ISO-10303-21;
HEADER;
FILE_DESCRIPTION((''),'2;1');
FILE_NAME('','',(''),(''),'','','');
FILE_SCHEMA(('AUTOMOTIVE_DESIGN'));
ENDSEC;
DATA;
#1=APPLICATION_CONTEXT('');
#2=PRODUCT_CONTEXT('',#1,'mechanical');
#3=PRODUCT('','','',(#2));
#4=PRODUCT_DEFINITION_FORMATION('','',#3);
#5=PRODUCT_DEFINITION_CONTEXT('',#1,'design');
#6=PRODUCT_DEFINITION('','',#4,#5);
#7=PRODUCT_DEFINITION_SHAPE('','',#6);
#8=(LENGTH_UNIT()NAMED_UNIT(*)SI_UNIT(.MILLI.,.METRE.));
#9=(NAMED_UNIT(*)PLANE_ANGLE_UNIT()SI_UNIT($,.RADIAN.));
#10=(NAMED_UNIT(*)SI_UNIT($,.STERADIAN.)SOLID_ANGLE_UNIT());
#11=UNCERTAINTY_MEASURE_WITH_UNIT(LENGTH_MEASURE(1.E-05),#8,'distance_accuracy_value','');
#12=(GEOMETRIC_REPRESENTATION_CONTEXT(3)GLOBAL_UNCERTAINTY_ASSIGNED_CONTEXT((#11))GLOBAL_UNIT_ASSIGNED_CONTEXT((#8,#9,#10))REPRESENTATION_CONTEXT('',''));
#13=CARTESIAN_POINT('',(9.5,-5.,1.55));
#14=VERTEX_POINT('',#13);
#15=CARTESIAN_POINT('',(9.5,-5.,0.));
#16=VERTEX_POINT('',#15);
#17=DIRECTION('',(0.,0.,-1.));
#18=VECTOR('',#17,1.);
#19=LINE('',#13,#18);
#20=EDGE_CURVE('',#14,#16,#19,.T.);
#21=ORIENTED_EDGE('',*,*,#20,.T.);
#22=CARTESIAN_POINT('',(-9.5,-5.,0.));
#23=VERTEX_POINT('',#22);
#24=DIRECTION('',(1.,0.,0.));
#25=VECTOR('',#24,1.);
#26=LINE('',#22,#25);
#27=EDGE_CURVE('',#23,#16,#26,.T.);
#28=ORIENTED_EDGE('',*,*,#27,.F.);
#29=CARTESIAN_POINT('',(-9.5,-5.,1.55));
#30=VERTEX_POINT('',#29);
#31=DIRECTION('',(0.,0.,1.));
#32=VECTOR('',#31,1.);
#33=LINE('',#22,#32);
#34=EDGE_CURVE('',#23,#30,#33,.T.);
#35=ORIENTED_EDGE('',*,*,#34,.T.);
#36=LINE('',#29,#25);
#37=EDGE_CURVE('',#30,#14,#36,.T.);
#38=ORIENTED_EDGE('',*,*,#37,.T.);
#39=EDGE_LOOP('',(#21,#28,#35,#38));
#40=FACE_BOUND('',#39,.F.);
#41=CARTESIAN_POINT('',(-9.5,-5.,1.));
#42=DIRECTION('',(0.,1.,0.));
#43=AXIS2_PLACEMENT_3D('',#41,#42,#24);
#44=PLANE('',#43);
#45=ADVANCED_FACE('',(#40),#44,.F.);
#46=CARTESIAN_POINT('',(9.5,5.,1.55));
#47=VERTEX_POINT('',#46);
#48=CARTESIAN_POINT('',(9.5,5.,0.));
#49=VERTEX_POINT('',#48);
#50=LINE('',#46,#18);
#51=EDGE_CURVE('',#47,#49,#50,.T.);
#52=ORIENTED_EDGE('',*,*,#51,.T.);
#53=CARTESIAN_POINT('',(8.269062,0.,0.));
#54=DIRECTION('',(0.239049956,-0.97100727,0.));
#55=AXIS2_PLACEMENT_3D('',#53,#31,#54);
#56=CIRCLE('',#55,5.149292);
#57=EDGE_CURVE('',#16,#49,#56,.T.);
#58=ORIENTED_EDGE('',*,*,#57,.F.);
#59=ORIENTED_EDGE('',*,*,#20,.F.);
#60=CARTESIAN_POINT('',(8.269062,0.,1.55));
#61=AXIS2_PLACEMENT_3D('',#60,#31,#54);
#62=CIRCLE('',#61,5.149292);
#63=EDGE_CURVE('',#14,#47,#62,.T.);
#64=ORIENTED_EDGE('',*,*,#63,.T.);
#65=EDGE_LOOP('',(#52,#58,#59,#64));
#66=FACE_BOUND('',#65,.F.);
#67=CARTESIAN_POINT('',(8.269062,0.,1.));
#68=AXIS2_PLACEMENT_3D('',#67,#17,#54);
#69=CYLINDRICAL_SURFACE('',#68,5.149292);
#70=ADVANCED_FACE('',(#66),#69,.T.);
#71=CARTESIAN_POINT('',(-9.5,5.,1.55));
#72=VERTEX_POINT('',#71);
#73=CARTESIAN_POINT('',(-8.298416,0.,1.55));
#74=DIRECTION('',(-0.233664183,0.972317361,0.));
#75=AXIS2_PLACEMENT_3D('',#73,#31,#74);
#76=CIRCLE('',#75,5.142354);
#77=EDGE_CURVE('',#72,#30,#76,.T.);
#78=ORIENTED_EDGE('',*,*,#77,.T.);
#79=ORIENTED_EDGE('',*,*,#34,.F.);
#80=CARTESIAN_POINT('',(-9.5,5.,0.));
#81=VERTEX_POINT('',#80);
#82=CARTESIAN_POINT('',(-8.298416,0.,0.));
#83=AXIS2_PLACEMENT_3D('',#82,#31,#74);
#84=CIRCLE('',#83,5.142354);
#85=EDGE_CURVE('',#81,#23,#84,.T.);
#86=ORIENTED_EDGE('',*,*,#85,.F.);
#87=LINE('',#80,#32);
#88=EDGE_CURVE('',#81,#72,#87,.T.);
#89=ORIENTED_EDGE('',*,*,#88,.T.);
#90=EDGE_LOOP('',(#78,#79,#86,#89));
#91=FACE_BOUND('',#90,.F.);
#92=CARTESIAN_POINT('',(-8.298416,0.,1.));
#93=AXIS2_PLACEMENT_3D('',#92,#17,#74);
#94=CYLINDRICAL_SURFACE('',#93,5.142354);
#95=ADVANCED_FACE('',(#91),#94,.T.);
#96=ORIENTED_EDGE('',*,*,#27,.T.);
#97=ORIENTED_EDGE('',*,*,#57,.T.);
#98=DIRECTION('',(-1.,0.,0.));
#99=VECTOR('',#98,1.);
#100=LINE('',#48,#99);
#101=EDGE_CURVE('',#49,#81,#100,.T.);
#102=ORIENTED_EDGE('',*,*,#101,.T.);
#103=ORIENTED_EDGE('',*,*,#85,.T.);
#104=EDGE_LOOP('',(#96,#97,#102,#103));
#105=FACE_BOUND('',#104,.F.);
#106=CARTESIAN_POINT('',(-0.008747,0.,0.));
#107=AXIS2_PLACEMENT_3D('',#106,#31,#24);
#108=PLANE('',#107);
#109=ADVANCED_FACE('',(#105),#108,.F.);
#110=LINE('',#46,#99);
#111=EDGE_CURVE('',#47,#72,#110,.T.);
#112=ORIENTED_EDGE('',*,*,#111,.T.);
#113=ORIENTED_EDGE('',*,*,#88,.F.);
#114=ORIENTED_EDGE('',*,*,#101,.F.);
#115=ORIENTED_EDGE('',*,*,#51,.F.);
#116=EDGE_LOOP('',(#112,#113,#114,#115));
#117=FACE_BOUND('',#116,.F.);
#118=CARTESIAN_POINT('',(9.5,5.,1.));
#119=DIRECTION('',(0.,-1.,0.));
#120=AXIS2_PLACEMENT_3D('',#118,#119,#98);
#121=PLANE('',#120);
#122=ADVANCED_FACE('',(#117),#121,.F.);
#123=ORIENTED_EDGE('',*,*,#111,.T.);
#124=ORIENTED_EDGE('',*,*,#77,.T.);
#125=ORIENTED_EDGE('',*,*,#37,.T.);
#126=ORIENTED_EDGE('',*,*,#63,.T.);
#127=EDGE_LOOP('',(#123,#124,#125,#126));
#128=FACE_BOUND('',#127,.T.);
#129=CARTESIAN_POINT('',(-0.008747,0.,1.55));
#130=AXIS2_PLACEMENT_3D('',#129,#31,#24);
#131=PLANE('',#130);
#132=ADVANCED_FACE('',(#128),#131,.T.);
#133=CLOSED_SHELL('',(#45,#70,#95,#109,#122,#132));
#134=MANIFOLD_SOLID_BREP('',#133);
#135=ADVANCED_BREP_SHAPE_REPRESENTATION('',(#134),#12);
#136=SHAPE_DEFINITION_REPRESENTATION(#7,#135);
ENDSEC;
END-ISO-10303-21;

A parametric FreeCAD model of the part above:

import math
import FreeCAD as App
import Part
import Sketcher

doc = App.newDocument("Part")
body = doc.addObject("PartDesign::Body", "Body")

# Sketch on XY plane
sketch1 = body.newObject("Sketcher::SketchObject", "Sketch")
sketch1.AttachmentSupport = (doc.getObject("XY_Plane"), [""])
sketch1.MapMode = "FlatFace"
sketch1.addGeometry(Part.LineSegment(App.Vector(-9.5, -5, 0), App.Vector(9.5, -5, 0)), False)
sketch1.addGeometry(Part.ArcOfCircle(Part.Circle(App.Vector(8.269062, 0, 0), App.Vector(0, 0, 1), 5.149292), math.radians(-76.169525), math.radians(76.169525)), False)
sketch1.addGeometry(Part.LineSegment(App.Vector(9.5, 5, 0), App.Vector(-9.5, 5, 0)), False)
sketch1.addGeometry(Part.ArcOfCircle(Part.Circle(App.Vector(-8.298416, 0, 0), App.Vector(0, 0, 1), 5.142354), math.radians(103.512894), math.radians(256.487106)), False)
sketch1.addConstraint(Sketcher.Constraint("Coincident", 0, 2, 1, 1))
sketch1.addConstraint(Sketcher.Constraint("Coincident", 1, 2, 2, 1))
sketch1.addConstraint(Sketcher.Constraint("Coincident", 2, 2, 3, 1))
sketch1.addConstraint(Sketcher.Constraint("Coincident", 3, 2, 0, 1))
sketch1.addConstraint(Sketcher.Constraint("Horizontal", 0))
sketch1.addConstraint(Sketcher.Constraint("Horizontal", 2))
sketch1.addConstraint(Sketcher.Constraint("Symmetric", 0, 2, 2, 2, -1, 1))
sketch1.addConstraint(Sketcher.Constraint("PointOnObject", 1, 3, -1))
sketch1.addConstraint(Sketcher.Constraint("PointOnObject", 3, 3, -1))
sketch1.addConstraint(Sketcher.Constraint("DistanceX", 0, 1, 0, 2, 19.0))
sketch1.addConstraint(Sketcher.Constraint("DistanceY", 0, 2, -1, 1, 5.0))
sketch1.addConstraint(Sketcher.Constraint("Radius", 1, 5.149292))
sketch1.addConstraint(Sketcher.Constraint("Radius", 3, 5.142354))
pad1 = body.newObject("PartDesign::Pad", "Pad")
pad1.Profile = sketch1
pad1.Length = 1

# Sketch on XY plane
sketch2 = body.newObject("Sketcher::SketchObject", "Sketch001")
sketch2.AttachmentSupport = (doc.getObject("XY_Plane"), [""])
sketch2.MapMode = "FlatFace"
sketch2.AttachmentOffset = App.Placement(App.Vector(0, 0, 1), App.Rotation())
sketch2.addGeometry(Part.LineSegment(App.Vector(9.5, 5, 0), App.Vector(-9.5, 5, 0)), False)
sketch2.addGeometry(Part.ArcOfCircle(Part.Circle(App.Vector(-8.298416, 0, 0), App.Vector(0, 0, 1), 5.142354), math.radians(103.512894), math.radians(256.487106)), False)
sketch2.addGeometry(Part.LineSegment(App.Vector(-9.5, -5, 0), App.Vector(9.5, -5, 0)), False)
sketch2.addGeometry(Part.ArcOfCircle(Part.Circle(App.Vector(8.269062, 0, 0), App.Vector(0, 0, 1), 5.149292), math.radians(-76.169525), math.radians(76.169525)), False)
sketch2.addConstraint(Sketcher.Constraint("Coincident", 0, 2, 1, 1))
sketch2.addConstraint(Sketcher.Constraint("Coincident", 1, 2, 2, 1))
sketch2.addConstraint(Sketcher.Constraint("Coincident", 2, 2, 3, 1))
sketch2.addConstraint(Sketcher.Constraint("Coincident", 3, 2, 0, 1))
sketch2.addConstraint(Sketcher.Constraint("Horizontal", 0))
sketch2.addConstraint(Sketcher.Constraint("Horizontal", 2))
sketch2.addConstraint(Sketcher.Constraint("Symmetric", 0, 2, 2, 2, -1, 1))
sketch2.addConstraint(Sketcher.Constraint("PointOnObject", 1, 3, -1))
sketch2.addConstraint(Sketcher.Constraint("PointOnObject", 3, 3, -1))
sketch2.addConstraint(Sketcher.Constraint("DistanceX", 0, 2, 0, 1, 19.0))
sketch2.addConstraint(Sketcher.Constraint("DistanceY", -1, 1, 0, 2, 5.0))
sketch2.addConstraint(Sketcher.Constraint("Radius", 1, 5.142354))
sketch2.addConstraint(Sketcher.Constraint("Radius", 3, 5.149292))
pad2 = body.newObject("PartDesign::Pad", "Pad001")
pad2.Profile = sketch2
pad2.Length = 0.55

doc.recompute()
